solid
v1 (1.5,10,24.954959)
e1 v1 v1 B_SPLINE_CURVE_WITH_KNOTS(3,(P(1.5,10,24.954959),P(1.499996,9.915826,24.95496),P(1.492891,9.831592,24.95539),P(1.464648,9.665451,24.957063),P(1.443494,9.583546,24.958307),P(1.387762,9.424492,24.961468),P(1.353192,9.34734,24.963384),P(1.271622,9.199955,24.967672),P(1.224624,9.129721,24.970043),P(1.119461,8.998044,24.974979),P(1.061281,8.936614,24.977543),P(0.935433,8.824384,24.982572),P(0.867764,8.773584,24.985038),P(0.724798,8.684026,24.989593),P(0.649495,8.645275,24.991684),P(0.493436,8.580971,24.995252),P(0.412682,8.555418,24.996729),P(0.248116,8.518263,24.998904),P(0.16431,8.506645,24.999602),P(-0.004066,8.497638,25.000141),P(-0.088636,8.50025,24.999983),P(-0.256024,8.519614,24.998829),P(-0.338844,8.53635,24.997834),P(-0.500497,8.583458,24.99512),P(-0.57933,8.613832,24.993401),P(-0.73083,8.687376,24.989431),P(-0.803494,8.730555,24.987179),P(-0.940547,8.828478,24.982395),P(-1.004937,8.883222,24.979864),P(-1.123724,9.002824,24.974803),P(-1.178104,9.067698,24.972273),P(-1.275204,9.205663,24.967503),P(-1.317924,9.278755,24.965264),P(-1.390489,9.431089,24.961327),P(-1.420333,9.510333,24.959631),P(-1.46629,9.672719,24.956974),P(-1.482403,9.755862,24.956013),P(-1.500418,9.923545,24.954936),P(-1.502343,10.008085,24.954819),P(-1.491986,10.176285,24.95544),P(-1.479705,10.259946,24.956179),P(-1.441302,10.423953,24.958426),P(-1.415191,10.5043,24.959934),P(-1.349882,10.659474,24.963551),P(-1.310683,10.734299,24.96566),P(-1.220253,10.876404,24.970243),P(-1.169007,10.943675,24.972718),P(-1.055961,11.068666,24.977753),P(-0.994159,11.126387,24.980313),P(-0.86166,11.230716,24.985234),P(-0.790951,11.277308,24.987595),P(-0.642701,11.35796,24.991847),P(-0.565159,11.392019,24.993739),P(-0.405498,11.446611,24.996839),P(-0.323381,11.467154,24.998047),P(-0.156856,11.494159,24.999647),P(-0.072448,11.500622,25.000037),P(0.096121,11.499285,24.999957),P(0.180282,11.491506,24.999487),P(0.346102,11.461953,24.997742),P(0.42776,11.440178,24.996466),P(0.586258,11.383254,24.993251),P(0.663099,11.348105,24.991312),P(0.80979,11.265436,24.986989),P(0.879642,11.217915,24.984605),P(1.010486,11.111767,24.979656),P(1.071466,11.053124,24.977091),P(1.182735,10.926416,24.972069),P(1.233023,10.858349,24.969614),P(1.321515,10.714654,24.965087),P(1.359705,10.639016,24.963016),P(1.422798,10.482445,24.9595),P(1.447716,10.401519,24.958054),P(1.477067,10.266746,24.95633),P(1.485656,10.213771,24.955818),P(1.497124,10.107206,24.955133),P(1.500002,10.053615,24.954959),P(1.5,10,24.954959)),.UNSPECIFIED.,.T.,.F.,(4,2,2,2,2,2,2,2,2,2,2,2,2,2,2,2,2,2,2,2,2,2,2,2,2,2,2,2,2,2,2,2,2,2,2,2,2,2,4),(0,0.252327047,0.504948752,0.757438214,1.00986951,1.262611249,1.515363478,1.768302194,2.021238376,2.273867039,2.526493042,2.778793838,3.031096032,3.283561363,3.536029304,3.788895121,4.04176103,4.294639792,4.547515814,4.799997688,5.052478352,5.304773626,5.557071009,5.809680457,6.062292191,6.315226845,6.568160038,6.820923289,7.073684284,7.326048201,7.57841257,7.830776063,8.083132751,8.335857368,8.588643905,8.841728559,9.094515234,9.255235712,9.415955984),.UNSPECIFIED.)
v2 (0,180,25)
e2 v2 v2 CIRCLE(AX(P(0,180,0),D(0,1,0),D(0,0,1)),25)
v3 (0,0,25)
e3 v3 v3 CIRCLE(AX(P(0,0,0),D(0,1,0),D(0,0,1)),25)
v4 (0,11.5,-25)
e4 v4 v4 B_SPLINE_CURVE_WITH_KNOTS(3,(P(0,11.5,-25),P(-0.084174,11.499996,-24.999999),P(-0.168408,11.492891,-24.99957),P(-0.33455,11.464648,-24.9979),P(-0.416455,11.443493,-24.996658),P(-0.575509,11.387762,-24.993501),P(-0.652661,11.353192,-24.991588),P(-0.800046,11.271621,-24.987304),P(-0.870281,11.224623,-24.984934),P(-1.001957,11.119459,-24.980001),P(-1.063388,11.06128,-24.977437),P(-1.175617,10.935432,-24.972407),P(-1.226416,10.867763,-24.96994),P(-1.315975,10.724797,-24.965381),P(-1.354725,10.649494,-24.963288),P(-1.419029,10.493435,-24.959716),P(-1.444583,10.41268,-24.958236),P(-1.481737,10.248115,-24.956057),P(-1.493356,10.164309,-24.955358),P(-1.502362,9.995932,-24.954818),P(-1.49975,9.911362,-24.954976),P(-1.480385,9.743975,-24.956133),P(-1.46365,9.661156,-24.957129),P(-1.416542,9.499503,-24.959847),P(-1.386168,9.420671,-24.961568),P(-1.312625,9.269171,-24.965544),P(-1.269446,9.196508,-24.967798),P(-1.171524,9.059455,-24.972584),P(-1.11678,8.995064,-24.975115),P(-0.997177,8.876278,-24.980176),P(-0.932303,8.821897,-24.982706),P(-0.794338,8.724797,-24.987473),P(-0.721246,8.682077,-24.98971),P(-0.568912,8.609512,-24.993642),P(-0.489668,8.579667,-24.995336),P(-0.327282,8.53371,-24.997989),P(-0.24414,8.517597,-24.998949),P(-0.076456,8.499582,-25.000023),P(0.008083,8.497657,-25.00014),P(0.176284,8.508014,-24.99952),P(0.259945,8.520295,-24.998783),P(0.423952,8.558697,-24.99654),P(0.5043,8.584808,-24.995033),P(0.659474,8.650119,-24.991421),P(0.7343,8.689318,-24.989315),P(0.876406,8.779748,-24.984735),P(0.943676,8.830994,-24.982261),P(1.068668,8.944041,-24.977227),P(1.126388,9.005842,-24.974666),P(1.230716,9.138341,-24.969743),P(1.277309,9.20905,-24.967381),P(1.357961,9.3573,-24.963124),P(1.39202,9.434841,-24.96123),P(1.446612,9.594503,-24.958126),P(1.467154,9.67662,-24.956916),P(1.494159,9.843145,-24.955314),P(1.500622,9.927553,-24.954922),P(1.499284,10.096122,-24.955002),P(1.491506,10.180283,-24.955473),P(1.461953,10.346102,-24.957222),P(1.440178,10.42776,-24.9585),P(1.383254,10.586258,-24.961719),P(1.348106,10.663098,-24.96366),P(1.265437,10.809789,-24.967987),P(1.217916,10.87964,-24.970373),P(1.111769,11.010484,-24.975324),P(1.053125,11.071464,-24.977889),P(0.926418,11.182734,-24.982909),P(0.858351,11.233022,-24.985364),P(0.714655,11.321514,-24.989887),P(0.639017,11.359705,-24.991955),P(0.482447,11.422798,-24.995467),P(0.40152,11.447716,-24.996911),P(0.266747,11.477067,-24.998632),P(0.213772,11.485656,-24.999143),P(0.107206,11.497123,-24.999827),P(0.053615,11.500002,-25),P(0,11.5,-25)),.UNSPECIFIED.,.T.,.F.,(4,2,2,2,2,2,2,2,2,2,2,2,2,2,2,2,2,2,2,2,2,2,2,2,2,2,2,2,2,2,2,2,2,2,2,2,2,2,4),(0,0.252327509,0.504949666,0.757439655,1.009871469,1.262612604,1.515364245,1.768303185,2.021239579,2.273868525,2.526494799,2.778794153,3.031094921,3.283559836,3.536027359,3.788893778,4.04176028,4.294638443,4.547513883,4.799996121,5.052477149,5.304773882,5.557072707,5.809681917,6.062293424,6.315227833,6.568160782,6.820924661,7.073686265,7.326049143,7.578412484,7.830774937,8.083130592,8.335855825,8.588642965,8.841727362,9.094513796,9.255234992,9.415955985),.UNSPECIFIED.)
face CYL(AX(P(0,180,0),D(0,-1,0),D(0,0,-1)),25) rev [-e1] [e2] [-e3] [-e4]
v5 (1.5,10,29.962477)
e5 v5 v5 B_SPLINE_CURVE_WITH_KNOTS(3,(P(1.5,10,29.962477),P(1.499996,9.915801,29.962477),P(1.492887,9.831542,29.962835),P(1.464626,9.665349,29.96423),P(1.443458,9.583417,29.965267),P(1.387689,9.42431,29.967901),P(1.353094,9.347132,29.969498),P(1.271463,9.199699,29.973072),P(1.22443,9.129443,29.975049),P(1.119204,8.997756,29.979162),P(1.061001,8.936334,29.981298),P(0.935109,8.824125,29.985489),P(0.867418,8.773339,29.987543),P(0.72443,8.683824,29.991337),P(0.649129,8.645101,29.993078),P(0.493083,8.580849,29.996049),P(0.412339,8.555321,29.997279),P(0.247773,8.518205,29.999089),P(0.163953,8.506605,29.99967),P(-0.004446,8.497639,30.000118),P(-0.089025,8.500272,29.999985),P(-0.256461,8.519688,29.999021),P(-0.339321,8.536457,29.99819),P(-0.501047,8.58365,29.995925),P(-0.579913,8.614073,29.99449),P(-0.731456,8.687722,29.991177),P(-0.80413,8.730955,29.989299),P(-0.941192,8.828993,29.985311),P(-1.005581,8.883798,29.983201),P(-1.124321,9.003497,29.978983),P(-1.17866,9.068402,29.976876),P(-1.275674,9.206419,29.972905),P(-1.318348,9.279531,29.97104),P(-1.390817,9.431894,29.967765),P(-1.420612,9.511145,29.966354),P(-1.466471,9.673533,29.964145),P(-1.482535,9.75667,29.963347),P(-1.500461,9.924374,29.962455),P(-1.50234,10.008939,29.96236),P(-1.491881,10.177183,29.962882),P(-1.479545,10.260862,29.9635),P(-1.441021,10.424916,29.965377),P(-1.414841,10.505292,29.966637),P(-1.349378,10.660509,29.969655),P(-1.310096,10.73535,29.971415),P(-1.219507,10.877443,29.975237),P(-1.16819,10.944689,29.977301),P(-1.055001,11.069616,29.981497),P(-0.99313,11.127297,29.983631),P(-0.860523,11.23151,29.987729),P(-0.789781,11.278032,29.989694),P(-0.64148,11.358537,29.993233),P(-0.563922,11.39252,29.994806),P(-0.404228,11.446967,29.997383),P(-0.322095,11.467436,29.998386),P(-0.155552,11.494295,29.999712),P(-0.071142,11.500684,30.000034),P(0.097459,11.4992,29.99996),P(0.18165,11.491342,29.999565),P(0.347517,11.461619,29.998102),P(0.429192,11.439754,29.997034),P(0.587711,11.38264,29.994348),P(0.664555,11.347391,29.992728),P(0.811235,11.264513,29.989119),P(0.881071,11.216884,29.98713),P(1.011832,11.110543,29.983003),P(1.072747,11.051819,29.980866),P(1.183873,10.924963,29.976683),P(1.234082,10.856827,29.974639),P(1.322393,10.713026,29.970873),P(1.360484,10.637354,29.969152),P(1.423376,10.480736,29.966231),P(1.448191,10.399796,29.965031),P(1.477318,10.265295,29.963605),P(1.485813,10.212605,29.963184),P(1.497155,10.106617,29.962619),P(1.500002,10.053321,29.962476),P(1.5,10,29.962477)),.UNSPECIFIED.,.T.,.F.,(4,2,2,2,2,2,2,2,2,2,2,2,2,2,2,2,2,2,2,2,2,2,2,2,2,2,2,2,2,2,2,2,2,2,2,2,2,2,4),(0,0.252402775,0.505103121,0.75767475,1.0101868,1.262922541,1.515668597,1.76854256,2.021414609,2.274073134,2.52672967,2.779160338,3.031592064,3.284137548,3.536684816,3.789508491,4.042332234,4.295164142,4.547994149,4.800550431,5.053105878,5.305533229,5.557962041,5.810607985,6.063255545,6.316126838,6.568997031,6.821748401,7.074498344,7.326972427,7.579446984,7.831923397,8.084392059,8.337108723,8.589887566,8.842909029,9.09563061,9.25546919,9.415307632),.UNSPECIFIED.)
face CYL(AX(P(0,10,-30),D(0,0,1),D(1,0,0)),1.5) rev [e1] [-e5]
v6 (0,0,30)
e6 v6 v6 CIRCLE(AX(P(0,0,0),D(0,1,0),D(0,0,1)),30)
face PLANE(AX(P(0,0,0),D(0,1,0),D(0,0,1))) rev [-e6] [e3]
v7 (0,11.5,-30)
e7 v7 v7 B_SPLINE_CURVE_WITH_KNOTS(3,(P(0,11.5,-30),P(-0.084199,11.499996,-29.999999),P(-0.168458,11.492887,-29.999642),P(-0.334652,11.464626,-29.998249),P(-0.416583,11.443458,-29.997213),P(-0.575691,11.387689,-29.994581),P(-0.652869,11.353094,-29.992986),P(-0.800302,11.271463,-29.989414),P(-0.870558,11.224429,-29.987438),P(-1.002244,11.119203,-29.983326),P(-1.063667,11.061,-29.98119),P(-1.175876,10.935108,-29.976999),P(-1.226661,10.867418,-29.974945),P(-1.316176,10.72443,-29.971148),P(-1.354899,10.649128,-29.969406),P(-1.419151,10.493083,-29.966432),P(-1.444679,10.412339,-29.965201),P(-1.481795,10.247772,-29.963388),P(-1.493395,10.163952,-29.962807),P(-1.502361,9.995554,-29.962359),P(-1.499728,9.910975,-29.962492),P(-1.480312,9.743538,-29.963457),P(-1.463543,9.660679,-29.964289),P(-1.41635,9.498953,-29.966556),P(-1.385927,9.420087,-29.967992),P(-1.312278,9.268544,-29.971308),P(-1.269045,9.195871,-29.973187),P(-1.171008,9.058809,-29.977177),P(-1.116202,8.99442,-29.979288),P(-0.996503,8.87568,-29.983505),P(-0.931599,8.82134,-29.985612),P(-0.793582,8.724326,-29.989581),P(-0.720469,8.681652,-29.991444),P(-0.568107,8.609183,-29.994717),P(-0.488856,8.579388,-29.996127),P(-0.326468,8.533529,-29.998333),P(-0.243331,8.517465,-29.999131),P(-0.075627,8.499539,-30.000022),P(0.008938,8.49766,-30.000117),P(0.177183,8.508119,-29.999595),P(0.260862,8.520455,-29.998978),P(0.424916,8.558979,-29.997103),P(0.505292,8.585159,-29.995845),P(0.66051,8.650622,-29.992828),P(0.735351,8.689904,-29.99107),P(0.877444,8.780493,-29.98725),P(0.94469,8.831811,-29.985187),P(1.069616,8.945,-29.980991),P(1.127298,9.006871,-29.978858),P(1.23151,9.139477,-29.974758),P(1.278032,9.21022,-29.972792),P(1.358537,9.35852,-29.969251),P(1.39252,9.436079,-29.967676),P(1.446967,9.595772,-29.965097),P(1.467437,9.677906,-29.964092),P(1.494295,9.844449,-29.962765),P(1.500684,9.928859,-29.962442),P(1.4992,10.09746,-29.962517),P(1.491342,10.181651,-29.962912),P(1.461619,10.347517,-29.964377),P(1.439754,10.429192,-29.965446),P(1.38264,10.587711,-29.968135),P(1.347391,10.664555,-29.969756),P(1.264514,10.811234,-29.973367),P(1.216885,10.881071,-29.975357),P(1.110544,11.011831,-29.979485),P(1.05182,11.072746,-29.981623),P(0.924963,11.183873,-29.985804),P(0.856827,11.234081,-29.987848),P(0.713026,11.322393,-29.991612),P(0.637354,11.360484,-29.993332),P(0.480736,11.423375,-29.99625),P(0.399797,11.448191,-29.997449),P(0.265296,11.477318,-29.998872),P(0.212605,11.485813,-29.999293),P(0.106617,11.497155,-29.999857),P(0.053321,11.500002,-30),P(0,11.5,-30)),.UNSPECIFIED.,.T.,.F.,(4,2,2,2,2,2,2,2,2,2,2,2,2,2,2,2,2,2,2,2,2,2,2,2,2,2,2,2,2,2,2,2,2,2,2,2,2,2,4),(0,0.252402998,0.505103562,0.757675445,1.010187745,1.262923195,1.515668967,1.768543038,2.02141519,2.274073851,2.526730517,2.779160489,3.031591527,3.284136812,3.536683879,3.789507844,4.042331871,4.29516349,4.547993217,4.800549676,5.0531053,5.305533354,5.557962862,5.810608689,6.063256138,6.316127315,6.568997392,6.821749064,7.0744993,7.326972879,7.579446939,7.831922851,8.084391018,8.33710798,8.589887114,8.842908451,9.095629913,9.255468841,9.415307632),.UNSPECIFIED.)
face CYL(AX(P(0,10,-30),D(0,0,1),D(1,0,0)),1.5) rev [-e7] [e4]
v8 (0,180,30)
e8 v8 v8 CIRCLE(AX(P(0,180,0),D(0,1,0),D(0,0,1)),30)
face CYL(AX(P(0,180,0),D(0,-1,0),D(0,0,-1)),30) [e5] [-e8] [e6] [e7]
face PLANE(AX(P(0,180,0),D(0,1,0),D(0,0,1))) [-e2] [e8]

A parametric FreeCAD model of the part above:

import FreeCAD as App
import Part
import Sketcher
from FreeCAD import Vector

doc = App.newDocument("Part")
body = doc.addObject("PartDesign::Body", "Body")

sketch1 = body.newObject("Sketcher::SketchObject", "Sketch")
sketch1.AttachmentSupport = (doc.getObject("XZ_Plane"), [""])
sketch1.MapMode = "FlatFace"
sketch1.addGeometry(Part.Circle(Vector(0, 0, 0), Vector(0, 0, 1), 30), False)
sketch1.addGeometry(Part.Circle(Vector(0, 0, 0), Vector(0, 0, 1), 25), False)
sketch1.addConstraint(Sketcher.Constraint("Coincident", 0, 3, -1, 1))
sketch1.addConstraint(Sketcher.Constraint("Coincident", 1, 3, -1, 1))
sketch1.addConstraint(Sketcher.Constraint("Diameter", 0, 60.0))
sketch1.addConstraint(Sketcher.Constraint("Diameter", 1, 50.0))
pad1 = body.newObject("PartDesign::Pad", "Pad")
pad1.Profile = sketch1
pad1.Length = 180
pad1.Reversed = True

sketch2 = body.newObject("Sketcher::SketchObject", "Sketch001")
sketch2.AttachmentSupport = (doc.getObject("XY_Plane"), [""])
sketch2.MapMode = "FlatFace"
sketch2.addGeometry(Part.Circle(Vector(0, 10, 0), Vector(0, 0, 1), 1.5), False)
sketch2.addConstraint(Sketcher.Constraint("PointOnObject", 0, 3, -2))
sketch2.addConstraint(Sketcher.Constraint("Diameter", 0, 3.0))
sketch2.addConstraint(Sketcher.Constraint("DistanceY", -1, 1, 0, 3, 10.0))
pocket1 = body.newObject("PartDesign::Pocket", "Pocket")
pocket1.Profile = sketch2
pocket1.Type = "ThroughAll"
pocket1.Midplane = True

doc.recompute()
